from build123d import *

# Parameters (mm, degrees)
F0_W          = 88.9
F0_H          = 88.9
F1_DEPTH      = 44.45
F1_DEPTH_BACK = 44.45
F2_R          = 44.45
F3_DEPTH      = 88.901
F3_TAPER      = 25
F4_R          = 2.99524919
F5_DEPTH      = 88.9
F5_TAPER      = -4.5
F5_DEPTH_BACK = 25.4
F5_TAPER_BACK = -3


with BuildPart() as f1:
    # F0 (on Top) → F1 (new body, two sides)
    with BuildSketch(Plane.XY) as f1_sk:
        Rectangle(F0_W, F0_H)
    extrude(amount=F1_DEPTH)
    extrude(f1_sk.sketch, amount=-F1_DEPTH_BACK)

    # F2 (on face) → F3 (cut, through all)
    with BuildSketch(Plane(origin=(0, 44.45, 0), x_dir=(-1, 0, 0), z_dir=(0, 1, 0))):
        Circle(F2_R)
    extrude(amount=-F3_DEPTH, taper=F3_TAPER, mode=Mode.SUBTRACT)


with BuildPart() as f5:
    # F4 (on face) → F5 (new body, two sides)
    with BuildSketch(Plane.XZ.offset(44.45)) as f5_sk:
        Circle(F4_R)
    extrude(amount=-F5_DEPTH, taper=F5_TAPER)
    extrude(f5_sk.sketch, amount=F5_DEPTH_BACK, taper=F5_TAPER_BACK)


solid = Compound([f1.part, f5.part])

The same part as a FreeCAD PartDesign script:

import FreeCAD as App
import Part
import Sketcher
from FreeCAD import Vector
Q = App.Units.Quantity


def add_polygon(sketch, points):
    """Adds a closed chain of lines whose ends are joined by coincident constraints."""
    first, n = sketch.GeometryCount, len(points)
    for a, b in zip(points, points[1:] + points[:1]):
        sketch.addGeometry(Part.LineSegment(App.Vector(*a, 0), App.Vector(*b, 0)), False)
    for i in range(n):
        sketch.addConstraint(Sketcher.Constraint("Coincident", first + i, 2, first + (i + 1) % n, 1))

doc = App.newDocument("Part")
body = doc.addObject("PartDesign::Body", "Body")

sketch1 = body.newObject("Sketcher::SketchObject", "Sketch")
sketch1.AttachmentSupport = (doc.getObject("XY_Plane"), [""])
sketch1.MapMode = "FlatFace"
add_polygon(sketch1, [(-44.45, 44.45), (-44.45, -44.45), (44.45, -44.45), (44.45, 44.45)])
sketch1.addConstraint(Sketcher.Constraint("Vertical", 0))
sketch1.addConstraint(Sketcher.Constraint("Horizontal", 1))
sketch1.addConstraint(Sketcher.Constraint("Vertical", 2))
sketch1.addConstraint(Sketcher.Constraint("Horizontal", 3))
sketch1.addConstraint(Sketcher.Constraint("Symmetric", 0, 2, 2, 2, -1, 1))
sketch1.addConstraint(Sketcher.Constraint("Equal", 3, 0))
sketch1.addConstraint(Sketcher.Constraint("DistanceX", 1, 1, 1, 2, Q("3.5 in")))
pad1 = body.newObject("PartDesign::Pad", "Pad")
pad1.Profile = sketch1
pad1.Type = "TwoLengths"
pad1.Length = Q("1.75 in")
pad1.Length2 = Q("1.75 in")

sketch2 = body.newObject("Sketcher::SketchObject", "Sketch001")
sketch2.AttachmentSupport = (doc.getObject("XZ_Plane"), [""])
sketch2.MapMode = "FlatFace"
sketch2.AttachmentOffset = App.Placement(Vector(0, 0, -1.75 * 25.4), App.Rotation())
sketch2.addGeometry(Part.Circle(Vector(0, 0, 0), Vector(0, 0, 1), 44.45), False)
sketch2.addConstraint(Sketcher.Constraint("Coincident", 0, 3, -1, 1))
sketch2.addConstraint(Sketcher.Constraint("Diameter", 0, Q("3.5 in")))
pocket1 = body.newObject("PartDesign::Pocket", "Pocket")
pocket1.Profile = sketch2
pocket1.Length = 88.901
pocket1.Reversed = True
pocket1.TaperAngle = -25
body2 = doc.addObject("PartDesign::Body", "Body001")

sketch3 = body2.newObject("Sketcher::SketchObject", "Sketch002")
sketch3.AttachmentSupport = (doc.getObject("XZ_Plane001"), [""])
sketch3.MapMode = "FlatFace"
sketch3.AttachmentOffset = App.Placement(Vector(0, 0, 1.75 * 25.4), App.Rotation())
sketch3.addGeometry(Part.Circle(Vector(0, 0, 0), Vector(0, 0, 1), 2.995249), False)
sketch3.addConstraint(Sketcher.Constraint("Coincident", 0, 3, -1, 1))
sketch3.addConstraint(Sketcher.Constraint("Diameter", 0, Q("5.990498 mm")))
pad2 = body2.newObject("PartDesign::Pad", "Pad001")
pad2.Profile = sketch3
pad2.Length = Q("3.5 in")
pad2.Reversed = True
pad2.TaperAngle = 4.5
pad3 = body2.newObject("PartDesign::Pad", "Pad002")
pad3.Profile = sketch3
pad3.Length = Q("1 in")
pad3.TaperAngle = 3

doc.recompute()
